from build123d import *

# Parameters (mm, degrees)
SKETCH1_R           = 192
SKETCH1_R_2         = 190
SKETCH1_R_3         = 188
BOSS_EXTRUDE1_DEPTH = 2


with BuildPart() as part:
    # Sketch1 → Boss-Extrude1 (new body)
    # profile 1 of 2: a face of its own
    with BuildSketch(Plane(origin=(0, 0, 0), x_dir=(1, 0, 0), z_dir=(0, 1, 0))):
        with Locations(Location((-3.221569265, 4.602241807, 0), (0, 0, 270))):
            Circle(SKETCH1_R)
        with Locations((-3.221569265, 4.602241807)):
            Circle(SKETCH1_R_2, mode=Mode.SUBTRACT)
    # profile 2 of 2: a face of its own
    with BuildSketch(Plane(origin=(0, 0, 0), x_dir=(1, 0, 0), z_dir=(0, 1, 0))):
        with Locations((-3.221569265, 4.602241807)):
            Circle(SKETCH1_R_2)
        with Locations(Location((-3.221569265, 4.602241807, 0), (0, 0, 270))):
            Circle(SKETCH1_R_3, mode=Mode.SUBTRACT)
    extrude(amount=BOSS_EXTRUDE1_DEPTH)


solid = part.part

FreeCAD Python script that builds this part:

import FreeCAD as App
import Part
import Sketcher
Q = App.Units.Quantity

doc = App.newDocument("Part")
body = doc.addObject("PartDesign::Body", "Body")

sketch1 = body.newObject("Sketcher::SketchObject", "Sketch")
sketch1.AttachmentSupport = (doc.getObject("XZ_Plane"), [""])
sketch1.MapMode = "FlatFace"
sketch1.addGeometry([
    Part.Circle(App.Vector(-3, -5, 0), App.Vector(0, 0, 1), 192),
    Part.Circle(App.Vector(-3, -5, 0), App.Vector(0, 0, 1), 188),
], False)
sketch1.addConstraint([
    Sketcher.Constraint("Coincident", 1, 3, 0, 3),
    Sketcher.Constraint("Diameter", 0, Q("384 mm")),
    Sketcher.Constraint("Diameter", 1, Q("376 mm")),
    Sketcher.Constraint("DistanceX", 0, 3, -1, 1, Q("3.221569 mm")),
    Sketcher.Constraint("DistanceY", 0, 3, -1, 1, Q("4.602242 mm")),
])
pad1 = body.newObject("PartDesign::Pad", "Pad")
pad1.Profile = sketch1
pad1.Length = 2
pad1.Reversed = True

doc.recompute()
